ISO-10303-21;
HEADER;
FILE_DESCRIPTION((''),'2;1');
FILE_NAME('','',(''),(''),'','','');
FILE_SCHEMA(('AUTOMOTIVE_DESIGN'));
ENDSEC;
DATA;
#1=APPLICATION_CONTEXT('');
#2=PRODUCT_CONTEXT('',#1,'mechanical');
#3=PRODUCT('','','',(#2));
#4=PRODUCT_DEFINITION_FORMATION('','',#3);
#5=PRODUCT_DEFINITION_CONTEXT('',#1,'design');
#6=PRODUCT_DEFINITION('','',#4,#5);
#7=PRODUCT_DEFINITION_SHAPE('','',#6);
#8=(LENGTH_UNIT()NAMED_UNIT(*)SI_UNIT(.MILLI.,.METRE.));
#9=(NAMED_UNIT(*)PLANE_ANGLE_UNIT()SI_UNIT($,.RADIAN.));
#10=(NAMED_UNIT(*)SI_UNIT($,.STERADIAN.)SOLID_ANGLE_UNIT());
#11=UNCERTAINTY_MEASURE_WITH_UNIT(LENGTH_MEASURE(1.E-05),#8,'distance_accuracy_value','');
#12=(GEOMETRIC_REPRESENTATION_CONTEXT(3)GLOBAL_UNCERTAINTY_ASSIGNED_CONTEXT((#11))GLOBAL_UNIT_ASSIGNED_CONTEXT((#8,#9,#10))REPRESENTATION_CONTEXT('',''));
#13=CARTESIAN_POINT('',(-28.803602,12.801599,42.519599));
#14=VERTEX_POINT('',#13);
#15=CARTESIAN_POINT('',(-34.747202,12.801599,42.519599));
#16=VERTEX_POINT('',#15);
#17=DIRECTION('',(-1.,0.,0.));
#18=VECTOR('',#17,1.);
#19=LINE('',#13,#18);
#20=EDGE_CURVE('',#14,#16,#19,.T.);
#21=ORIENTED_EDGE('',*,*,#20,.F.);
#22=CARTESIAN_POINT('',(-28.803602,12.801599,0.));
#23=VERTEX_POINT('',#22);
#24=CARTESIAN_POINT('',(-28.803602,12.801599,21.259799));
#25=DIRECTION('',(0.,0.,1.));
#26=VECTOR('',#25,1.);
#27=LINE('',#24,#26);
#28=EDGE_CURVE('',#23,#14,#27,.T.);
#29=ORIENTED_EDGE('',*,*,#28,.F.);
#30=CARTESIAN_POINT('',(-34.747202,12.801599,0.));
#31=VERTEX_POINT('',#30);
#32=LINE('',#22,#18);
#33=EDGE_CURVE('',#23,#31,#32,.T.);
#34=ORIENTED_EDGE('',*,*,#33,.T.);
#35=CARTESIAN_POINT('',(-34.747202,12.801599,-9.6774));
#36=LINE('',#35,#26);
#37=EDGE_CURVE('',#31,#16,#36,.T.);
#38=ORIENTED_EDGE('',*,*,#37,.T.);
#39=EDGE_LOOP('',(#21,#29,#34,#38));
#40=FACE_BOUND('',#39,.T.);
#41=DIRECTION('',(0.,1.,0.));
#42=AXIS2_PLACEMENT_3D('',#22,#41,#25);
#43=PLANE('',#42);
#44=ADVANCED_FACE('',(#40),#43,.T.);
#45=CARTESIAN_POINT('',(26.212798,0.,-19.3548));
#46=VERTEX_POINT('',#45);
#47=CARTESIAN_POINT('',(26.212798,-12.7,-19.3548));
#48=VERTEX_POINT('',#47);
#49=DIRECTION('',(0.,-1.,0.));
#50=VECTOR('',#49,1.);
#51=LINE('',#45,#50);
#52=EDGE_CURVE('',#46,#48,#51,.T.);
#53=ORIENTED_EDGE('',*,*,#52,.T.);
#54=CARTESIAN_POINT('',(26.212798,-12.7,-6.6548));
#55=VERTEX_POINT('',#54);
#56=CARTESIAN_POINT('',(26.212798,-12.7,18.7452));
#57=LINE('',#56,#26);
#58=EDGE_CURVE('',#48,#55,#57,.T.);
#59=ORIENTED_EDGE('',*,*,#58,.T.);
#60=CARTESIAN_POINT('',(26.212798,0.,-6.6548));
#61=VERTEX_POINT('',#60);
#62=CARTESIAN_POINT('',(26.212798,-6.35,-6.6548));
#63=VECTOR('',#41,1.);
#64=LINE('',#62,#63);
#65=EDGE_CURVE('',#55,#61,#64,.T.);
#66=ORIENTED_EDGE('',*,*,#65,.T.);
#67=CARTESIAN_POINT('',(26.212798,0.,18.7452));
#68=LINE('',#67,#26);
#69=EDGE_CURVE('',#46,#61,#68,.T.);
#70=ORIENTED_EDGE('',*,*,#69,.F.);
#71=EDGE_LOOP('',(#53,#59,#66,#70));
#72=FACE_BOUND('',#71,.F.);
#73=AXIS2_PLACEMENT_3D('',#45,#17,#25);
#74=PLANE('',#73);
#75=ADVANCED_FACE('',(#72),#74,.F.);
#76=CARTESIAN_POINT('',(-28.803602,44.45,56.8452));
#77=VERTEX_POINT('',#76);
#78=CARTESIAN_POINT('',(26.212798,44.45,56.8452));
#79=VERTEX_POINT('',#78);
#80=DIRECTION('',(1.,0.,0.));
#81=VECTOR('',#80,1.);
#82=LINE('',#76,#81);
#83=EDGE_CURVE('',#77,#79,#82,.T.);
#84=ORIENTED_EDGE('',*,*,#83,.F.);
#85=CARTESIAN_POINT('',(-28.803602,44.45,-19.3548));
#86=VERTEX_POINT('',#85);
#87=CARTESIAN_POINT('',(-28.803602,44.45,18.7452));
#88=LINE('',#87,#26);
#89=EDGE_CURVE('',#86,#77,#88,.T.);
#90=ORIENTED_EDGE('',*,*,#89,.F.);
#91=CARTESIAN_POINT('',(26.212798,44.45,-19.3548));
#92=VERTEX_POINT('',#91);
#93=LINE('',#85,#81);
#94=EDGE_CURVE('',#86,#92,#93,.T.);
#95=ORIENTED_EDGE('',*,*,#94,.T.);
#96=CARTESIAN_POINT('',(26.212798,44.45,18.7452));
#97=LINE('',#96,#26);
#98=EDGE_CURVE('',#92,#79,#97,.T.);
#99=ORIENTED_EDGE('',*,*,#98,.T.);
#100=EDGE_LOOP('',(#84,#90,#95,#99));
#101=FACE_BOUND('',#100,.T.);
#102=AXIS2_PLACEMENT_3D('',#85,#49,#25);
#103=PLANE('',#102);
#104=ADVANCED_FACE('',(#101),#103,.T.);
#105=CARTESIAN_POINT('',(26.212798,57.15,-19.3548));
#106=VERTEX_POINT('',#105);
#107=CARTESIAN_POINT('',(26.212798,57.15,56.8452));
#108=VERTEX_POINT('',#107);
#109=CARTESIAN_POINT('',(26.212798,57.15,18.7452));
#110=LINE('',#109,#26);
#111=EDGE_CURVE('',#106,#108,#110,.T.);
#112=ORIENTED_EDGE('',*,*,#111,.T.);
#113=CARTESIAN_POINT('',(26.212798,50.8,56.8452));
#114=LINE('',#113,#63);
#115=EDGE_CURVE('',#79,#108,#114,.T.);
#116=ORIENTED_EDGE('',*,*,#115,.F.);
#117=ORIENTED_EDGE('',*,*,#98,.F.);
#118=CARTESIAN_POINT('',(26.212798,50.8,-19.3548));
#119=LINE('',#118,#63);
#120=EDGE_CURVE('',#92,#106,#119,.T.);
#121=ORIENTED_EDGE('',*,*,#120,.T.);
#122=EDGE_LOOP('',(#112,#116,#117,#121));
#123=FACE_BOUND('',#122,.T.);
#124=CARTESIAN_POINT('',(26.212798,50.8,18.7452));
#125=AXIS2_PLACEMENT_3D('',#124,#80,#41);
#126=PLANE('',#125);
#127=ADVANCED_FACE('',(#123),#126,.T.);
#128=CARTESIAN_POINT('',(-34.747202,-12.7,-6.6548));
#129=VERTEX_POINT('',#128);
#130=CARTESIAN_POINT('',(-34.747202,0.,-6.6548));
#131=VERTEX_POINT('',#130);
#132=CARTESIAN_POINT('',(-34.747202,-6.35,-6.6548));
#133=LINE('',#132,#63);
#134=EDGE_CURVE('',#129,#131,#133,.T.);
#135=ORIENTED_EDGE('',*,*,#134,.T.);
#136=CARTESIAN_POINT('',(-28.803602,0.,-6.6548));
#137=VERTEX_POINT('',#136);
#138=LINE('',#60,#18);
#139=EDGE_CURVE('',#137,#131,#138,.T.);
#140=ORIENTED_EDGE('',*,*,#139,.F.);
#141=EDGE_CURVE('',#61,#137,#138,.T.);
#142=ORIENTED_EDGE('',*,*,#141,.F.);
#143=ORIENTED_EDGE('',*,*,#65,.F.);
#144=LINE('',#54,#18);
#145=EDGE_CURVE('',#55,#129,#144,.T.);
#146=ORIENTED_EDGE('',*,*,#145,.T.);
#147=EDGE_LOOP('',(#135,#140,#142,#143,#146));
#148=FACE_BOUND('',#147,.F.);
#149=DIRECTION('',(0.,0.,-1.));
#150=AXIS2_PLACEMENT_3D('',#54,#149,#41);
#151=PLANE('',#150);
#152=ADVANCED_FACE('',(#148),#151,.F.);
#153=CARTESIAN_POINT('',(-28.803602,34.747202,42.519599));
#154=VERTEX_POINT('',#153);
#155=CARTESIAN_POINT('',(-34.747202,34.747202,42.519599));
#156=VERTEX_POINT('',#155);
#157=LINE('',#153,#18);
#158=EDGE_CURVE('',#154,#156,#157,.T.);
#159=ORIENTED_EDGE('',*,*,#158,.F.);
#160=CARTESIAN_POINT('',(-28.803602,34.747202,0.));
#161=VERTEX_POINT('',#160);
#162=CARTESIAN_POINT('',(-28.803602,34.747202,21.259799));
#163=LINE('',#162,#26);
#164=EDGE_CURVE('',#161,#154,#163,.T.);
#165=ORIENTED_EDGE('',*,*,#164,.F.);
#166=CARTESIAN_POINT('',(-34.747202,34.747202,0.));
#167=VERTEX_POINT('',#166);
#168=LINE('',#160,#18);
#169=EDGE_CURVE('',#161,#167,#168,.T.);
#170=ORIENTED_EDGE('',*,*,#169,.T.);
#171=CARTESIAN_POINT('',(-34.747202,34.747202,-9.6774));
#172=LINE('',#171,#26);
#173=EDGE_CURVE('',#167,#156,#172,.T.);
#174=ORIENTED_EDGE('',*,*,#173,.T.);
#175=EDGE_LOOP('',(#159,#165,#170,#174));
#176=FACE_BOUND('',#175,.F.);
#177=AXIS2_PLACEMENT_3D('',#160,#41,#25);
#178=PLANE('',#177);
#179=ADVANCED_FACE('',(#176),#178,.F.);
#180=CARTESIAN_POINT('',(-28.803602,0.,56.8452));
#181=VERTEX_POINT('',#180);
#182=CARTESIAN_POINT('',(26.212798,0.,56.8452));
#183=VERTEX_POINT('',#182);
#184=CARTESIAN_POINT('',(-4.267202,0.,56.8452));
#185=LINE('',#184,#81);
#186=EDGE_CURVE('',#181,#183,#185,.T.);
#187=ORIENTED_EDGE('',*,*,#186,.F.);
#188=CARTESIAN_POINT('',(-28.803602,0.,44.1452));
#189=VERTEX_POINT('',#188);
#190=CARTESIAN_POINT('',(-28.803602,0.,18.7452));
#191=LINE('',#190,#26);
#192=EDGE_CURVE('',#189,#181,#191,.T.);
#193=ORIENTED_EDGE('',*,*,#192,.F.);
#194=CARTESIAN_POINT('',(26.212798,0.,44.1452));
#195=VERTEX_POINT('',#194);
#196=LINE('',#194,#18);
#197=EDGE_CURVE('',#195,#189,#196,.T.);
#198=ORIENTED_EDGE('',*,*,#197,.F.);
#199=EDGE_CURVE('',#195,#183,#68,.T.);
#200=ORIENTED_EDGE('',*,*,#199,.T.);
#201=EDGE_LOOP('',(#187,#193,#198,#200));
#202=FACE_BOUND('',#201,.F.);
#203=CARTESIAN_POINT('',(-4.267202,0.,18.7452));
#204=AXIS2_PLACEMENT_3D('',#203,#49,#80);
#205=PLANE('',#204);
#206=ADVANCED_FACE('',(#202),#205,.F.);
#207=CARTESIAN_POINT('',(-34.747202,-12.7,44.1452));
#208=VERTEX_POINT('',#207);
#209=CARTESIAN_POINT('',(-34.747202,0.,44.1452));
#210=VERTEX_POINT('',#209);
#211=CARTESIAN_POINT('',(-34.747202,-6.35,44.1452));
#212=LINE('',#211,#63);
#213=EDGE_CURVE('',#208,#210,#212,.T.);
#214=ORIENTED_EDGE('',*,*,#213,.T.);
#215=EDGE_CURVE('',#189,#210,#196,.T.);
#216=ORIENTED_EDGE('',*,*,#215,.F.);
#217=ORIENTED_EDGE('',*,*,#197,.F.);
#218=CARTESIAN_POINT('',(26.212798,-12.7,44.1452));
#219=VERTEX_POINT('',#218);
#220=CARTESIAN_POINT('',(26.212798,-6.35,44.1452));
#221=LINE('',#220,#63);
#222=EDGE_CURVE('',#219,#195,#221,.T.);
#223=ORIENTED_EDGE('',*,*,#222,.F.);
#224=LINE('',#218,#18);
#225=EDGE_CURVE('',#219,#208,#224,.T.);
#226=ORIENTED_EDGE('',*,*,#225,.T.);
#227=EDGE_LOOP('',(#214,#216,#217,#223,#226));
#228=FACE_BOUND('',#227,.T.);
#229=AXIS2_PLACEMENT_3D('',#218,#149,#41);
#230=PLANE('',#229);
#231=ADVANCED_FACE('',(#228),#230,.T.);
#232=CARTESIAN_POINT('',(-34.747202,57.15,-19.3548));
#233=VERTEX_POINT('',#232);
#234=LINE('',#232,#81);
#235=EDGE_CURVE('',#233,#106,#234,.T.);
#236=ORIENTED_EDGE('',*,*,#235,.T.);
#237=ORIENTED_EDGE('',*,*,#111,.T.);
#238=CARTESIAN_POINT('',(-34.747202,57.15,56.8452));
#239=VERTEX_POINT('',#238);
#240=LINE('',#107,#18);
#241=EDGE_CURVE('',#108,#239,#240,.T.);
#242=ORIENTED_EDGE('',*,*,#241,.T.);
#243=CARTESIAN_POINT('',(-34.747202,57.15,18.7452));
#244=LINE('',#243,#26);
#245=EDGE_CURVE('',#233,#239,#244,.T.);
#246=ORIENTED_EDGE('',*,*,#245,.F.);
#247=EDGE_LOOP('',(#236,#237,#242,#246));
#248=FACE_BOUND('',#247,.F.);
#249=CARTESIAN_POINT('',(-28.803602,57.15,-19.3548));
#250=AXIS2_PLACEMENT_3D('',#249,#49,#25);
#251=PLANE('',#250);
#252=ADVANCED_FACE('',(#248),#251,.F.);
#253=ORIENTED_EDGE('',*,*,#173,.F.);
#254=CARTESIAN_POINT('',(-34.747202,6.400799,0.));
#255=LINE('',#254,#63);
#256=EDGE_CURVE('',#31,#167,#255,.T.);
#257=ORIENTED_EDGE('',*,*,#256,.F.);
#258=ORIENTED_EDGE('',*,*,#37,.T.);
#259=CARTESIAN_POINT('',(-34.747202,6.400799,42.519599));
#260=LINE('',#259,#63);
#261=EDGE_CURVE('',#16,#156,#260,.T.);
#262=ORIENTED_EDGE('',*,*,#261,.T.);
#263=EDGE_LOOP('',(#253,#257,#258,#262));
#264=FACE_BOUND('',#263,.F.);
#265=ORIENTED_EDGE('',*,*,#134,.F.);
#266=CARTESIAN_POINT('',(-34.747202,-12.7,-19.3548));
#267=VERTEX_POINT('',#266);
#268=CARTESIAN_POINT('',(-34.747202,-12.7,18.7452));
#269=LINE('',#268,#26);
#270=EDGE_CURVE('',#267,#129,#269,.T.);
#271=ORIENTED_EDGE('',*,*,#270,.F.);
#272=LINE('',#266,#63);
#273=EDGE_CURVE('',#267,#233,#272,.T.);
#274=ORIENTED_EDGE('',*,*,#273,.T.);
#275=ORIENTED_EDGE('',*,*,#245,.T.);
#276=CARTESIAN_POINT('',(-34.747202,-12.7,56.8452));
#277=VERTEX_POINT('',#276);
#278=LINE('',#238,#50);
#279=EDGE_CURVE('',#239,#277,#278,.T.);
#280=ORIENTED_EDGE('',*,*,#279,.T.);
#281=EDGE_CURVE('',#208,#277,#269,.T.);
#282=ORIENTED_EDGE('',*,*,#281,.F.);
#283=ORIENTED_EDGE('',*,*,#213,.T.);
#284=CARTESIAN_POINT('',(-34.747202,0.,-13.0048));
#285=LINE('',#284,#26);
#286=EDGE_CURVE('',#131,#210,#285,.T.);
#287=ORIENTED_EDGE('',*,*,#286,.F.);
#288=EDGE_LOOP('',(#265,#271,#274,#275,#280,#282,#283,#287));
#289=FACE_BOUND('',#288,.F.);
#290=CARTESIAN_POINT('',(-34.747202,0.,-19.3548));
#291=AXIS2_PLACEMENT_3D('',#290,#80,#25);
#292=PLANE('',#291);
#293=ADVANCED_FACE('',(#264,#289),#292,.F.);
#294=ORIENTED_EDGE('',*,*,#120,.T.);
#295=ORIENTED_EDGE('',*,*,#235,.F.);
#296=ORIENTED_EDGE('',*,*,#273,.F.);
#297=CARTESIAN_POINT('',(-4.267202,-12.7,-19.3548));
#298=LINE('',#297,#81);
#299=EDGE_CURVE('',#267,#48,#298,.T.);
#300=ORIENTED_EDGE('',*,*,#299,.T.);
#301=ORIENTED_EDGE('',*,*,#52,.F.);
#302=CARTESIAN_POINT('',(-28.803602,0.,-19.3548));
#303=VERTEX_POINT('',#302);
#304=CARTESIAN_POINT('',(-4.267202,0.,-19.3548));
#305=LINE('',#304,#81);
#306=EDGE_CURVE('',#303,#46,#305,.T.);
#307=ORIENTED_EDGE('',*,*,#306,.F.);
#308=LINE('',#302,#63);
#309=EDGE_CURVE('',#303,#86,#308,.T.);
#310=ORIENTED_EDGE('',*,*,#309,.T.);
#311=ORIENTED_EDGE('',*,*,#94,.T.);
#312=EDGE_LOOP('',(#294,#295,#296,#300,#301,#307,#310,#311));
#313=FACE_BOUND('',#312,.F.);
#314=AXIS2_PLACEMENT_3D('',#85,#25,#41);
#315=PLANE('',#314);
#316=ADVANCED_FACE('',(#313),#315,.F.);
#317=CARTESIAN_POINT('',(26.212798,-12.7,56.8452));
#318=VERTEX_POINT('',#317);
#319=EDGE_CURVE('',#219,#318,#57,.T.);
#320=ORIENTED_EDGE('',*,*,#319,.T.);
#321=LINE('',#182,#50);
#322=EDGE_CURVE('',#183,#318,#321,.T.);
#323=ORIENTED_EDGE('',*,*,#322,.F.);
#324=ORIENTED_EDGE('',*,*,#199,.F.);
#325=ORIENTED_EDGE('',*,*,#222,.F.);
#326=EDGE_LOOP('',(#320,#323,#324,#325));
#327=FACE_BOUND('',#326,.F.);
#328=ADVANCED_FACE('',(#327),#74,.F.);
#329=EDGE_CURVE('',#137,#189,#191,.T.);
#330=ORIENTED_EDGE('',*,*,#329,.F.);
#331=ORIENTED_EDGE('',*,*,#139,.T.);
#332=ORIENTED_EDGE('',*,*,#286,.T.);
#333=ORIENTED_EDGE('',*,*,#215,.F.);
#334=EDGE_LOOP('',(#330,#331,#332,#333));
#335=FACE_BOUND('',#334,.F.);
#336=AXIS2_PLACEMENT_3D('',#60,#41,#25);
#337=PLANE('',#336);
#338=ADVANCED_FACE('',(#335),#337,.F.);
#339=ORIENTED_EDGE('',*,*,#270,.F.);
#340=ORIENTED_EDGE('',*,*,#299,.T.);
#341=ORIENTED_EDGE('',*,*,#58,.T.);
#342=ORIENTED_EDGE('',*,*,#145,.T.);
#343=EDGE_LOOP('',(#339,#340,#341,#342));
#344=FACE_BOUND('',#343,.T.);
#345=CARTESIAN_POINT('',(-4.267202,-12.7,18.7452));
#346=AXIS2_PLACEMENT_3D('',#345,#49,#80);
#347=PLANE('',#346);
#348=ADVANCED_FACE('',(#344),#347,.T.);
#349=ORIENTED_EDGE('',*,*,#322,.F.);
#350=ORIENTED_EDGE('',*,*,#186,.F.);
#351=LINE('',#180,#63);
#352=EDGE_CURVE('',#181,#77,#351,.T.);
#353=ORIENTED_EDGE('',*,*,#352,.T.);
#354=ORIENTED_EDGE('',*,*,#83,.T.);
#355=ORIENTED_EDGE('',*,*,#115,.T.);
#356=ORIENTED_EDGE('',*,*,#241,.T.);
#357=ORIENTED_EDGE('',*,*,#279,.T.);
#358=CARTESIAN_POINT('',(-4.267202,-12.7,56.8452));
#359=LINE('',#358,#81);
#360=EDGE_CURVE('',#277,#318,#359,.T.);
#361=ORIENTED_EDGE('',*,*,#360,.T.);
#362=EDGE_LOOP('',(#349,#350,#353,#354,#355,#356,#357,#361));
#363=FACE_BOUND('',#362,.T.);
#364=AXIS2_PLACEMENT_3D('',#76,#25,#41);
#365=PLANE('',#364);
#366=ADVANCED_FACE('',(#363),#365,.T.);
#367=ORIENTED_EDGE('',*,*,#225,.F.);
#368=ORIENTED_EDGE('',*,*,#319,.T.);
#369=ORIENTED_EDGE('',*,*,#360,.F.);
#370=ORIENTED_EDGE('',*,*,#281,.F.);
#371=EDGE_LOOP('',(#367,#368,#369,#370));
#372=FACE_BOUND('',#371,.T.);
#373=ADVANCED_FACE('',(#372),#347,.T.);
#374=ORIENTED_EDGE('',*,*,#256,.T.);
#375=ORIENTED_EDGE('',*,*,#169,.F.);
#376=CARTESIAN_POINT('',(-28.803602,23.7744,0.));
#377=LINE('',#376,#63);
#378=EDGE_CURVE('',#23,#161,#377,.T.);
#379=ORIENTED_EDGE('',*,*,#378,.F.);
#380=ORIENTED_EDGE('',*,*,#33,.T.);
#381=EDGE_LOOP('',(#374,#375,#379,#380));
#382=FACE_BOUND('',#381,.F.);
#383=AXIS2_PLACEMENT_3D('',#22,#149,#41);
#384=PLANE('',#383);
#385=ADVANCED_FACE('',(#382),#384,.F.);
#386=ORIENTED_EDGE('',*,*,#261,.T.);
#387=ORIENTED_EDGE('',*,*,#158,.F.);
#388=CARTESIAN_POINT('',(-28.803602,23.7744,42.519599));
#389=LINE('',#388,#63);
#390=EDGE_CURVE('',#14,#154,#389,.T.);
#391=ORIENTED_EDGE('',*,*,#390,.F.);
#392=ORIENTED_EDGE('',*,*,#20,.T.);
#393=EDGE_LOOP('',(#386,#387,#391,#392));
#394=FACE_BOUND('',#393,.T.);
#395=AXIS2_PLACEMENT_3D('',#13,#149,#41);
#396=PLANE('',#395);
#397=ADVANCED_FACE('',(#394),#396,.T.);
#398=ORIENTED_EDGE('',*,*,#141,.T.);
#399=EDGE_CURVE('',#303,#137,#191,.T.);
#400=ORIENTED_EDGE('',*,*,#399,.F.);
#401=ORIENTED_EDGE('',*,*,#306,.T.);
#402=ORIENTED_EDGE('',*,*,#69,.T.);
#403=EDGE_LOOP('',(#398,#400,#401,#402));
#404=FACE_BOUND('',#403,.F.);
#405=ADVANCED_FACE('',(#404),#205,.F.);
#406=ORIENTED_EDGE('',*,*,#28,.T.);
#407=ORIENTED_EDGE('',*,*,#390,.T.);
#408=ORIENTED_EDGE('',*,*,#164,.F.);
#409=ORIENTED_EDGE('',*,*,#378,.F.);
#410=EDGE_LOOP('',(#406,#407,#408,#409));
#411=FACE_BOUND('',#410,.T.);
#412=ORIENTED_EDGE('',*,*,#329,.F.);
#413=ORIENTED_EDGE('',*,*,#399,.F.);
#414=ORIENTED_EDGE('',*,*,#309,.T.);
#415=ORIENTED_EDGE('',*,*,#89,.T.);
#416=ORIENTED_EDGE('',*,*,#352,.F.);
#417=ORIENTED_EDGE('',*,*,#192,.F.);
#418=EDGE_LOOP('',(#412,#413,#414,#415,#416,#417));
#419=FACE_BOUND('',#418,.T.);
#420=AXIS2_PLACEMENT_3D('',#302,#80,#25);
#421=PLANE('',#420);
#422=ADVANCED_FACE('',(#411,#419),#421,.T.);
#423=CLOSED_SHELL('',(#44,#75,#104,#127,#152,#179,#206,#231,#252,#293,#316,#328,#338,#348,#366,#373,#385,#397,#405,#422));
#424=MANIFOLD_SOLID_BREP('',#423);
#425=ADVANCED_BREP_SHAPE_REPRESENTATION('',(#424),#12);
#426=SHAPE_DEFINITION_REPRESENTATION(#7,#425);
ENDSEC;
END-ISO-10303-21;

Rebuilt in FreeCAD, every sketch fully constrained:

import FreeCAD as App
import Part
import Sketcher
Q = App.Units.Quantity


def add_polygon(sketch, points):
    """Adds a closed chain of lines whose ends are joined by coincident constraints."""
    first, n = sketch.GeometryCount, len(points)
    for a, b in zip(points, points[1:] + points[:1]):
        sketch.addGeometry(Part.LineSegment(App.Vector(*a, 0), App.Vector(*b, 0)), False)
    for i in range(n):
        sketch.addConstraint(Sketcher.Constraint("Coincident", first + i, 2, first + (i + 1) % n, 1))

doc = App.newDocument("Part")
body = doc.addObject("PartDesign::Body", "Body")

# Sketch on XZ plane
sketch1 = doc.addObject("Sketcher::SketchObject", "Sketch")
body.addObject(sketch1)
sketch1.AttachmentSupport = (doc.XZ_Plane, [""])
sketch1.MapMode = "FlatFace"
add_polygon(sketch1, [(-34.747202, 56.8452), (-34.747202, -19.3548), (26.212798, -19.3548), (26.212798, 56.8452)])  # lines 0-3
sketch1.addConstraint(Sketcher.Constraint("Vertical", 0))
sketch1.addConstraint(Sketcher.Constraint("Horizontal", 1))
sketch1.addConstraint(Sketcher.Constraint("Vertical", 2))
sketch1.addConstraint(Sketcher.Constraint("Horizontal", 3))
sketch1.addConstraint(Sketcher.Constraint("DistanceY", 0, 2, 0, 1, Q("3 in")))
sketch1.addConstraint(Sketcher.Constraint("DistanceX", 1, 1, 1, 2, Q("2.4 in")))
sketch1.addConstraint(Sketcher.Constraint("DistanceX", 0, 2, -1, 1, Q("1.3680001 in")))
sketch1.addConstraint(Sketcher.Constraint("DistanceY", 0, 2, -1, 1, Q("0.762 in")))
pad1 = doc.addObject("PartDesign::Pad", "Pad")
body.addObject(pad1)
pad1.Profile = sketch1
pad1.Length = Q("0.5 in")

# Sketch on XZ plane
sketch2 = doc.addObject("Sketcher::SketchObject", "Sketch001")
body.addObject(sketch2)
sketch2.AttachmentSupport = (doc.XZ_Plane, [""])
sketch2.MapMode = "FlatFace"
add_polygon(sketch2, [(-28.803602, 56.8452), (-28.803602, -19.3548), (-34.747202, -19.3548), (-34.747202, 56.8452)])  # lines 0-3
sketch2.addConstraint(Sketcher.Constraint("Vertical", 0))
sketch2.addConstraint(Sketcher.Constraint("Horizontal", 1))
sketch2.addConstraint(Sketcher.Constraint("Vertical", 2))
sketch2.addConstraint(Sketcher.Constraint("Horizontal", 3))
sketch2.addConstraint(Sketcher.Constraint("DistanceY", 0, 2, 0, 1, Q("3 in")))
sketch2.addConstraint(Sketcher.Constraint("DistanceX", 1, 2, 1, 1, Q("0.234 in")))
sketch2.addConstraint(Sketcher.Constraint("DistanceX", 0, 2, -1, 1, Q("1.1340001 in")))
sketch2.addConstraint(Sketcher.Constraint("DistanceY", 0, 2, -1, 1, Q("0.762 in")))
pad2 = doc.addObject("PartDesign::Pad", "Pad001")
body.addObject(pad2)
pad2.Profile = sketch2
pad2.Length = Q("2.25 in")
pad2.Reversed = True

# Sketch on YZ plane
sketch3 = doc.addObject("Sketcher::SketchObject", "Sketch002")
body.addObject(sketch3)
sketch3.AttachmentSupport = (doc.YZ_Plane, [""])
sketch3.MapMode = "FlatFace"
sketch3.AttachmentOffset = App.Placement(App.Vector(0, 0, -1.1340001 * 25.4), App.Rotation())
add_polygon(sketch3, [(44.45, 56.8452), (44.45, -19.3548), (57.15, -19.3548), (57.15, 56.8452)])  # lines 0-3
sketch3.addConstraint(Sketcher.Constraint("Vertical", 0))
sketch3.addConstraint(Sketcher.Constraint("Horizontal", 1))
sketch3.addConstraint(Sketcher.Constraint("Vertical", 2))
sketch3.addConstraint(Sketcher.Constraint("Horizontal", 3))
sketch3.addConstraint(Sketcher.Constraint("DistanceY", 0, 2, 0, 1, Q("3 in")))
sketch3.addConstraint(Sketcher.Constraint("DistanceX", 1, 1, 1, 2, Q("0.5 in")))
sketch3.addConstraint(Sketcher.Constraint("DistanceX", -1, 1, 0, 2, Q("1.75 in")))
sketch3.addConstraint(Sketcher.Constraint("DistanceY", 0, 2, -1, 1, Q("0.762 in")))
pad3 = doc.addObject("PartDesign::Pad", "Pad002")
body.addObject(pad3)
pad3.Profile = sketch3
pad3.Length = Q("2.166 in")

# Sketch on YZ plane
sketch4 = doc.addObject("Sketcher::SketchObject", "Sketch003")
body.addObject(sketch4)
sketch4.AttachmentSupport = (doc.YZ_Plane, [""])
sketch4.MapMode = "FlatFace"
sketch4.AttachmentOffset = App.Placement(App.Vector(0, 0, 1.0319999 * 25.4), App.Rotation())
add_polygon(sketch4, [(-12.7, 44.1452), (-12.7, -6.6548), (0, -6.6548), (0, 44.1452)])  # lines 0-3
sketch4.addConstraint(Sketcher.Constraint("Vertical", 0))
sketch4.addConstraint(Sketcher.Constraint("Horizontal", 1))
sketch4.addConstraint(Sketcher.Constraint("Vertical", 2))
sketch4.addConstraint(Sketcher.Constraint("Horizontal", 3))
sketch4.addConstraint(Sketcher.Constraint("PointOnObject", 1, 2, -2))
sketch4.addConstraint(Sketcher.Constraint("DistanceY", 0, 2, 0, 1, Q("2 in")))
sketch4.addConstraint(Sketcher.Constraint("DistanceX", 1, 1, 1, 2, Q("0.5 in")))
sketch4.addConstraint(Sketcher.Constraint("DistanceY", 0, 2, -1, 1, Q("0.262 in")))
pocket1 = doc.addObject("PartDesign::Pocket", "Pocket")
body.addObject(pocket1)
pocket1.Profile = sketch4
pocket1.Length = Q("2.5 in")

# Sketch on YZ plane
sketch5 = doc.addObject("Sketcher::SketchObject", "Sketch004")
body.addObject(sketch5)
sketch5.AttachmentSupport = (doc.YZ_Plane, [""])
sketch5.MapMode = "FlatFace"
sketch5.AttachmentOffset = App.Placement(App.Vector(0, 0, -1.1340001 * 25.4), App.Rotation())
add_polygon(sketch5, [(12.801599, 42.519599), (12.801599, 0), (34.747202, 0), (34.747202, 42.519599)])  # lines 0-3
sketch5.addConstraint(Sketcher.Constraint("Vertical", 0))
sketch5.addConstraint(Sketcher.Constraint("Horizontal", 1))
sketch5.addConstraint(Sketcher.Constraint("Vertical", 2))
sketch5.addConstraint(Sketcher.Constraint("Horizontal", 3))
sketch5.addConstraint(Sketcher.Constraint("PointOnObject", 0, 2, -1))
sketch5.addConstraint(Sketcher.Constraint("DistanceX", 1, 1, 1, 2, Q("0.8640001 in")))
sketch5.addConstraint(Sketcher.Constraint("DistanceY", 0, 2, 0, 1, Q("1.674 in")))
sketch5.addConstraint(Sketcher.Constraint("DistanceX", -1, 1, 0, 2, Q("0.5039999 in")))
pocket2 = doc.addObject("PartDesign::Pocket", "Pocket001")
body.addObject(pocket2)
pocket2.Profile = sketch5
pocket2.Length = Q("1 in")

doc.recompute()
